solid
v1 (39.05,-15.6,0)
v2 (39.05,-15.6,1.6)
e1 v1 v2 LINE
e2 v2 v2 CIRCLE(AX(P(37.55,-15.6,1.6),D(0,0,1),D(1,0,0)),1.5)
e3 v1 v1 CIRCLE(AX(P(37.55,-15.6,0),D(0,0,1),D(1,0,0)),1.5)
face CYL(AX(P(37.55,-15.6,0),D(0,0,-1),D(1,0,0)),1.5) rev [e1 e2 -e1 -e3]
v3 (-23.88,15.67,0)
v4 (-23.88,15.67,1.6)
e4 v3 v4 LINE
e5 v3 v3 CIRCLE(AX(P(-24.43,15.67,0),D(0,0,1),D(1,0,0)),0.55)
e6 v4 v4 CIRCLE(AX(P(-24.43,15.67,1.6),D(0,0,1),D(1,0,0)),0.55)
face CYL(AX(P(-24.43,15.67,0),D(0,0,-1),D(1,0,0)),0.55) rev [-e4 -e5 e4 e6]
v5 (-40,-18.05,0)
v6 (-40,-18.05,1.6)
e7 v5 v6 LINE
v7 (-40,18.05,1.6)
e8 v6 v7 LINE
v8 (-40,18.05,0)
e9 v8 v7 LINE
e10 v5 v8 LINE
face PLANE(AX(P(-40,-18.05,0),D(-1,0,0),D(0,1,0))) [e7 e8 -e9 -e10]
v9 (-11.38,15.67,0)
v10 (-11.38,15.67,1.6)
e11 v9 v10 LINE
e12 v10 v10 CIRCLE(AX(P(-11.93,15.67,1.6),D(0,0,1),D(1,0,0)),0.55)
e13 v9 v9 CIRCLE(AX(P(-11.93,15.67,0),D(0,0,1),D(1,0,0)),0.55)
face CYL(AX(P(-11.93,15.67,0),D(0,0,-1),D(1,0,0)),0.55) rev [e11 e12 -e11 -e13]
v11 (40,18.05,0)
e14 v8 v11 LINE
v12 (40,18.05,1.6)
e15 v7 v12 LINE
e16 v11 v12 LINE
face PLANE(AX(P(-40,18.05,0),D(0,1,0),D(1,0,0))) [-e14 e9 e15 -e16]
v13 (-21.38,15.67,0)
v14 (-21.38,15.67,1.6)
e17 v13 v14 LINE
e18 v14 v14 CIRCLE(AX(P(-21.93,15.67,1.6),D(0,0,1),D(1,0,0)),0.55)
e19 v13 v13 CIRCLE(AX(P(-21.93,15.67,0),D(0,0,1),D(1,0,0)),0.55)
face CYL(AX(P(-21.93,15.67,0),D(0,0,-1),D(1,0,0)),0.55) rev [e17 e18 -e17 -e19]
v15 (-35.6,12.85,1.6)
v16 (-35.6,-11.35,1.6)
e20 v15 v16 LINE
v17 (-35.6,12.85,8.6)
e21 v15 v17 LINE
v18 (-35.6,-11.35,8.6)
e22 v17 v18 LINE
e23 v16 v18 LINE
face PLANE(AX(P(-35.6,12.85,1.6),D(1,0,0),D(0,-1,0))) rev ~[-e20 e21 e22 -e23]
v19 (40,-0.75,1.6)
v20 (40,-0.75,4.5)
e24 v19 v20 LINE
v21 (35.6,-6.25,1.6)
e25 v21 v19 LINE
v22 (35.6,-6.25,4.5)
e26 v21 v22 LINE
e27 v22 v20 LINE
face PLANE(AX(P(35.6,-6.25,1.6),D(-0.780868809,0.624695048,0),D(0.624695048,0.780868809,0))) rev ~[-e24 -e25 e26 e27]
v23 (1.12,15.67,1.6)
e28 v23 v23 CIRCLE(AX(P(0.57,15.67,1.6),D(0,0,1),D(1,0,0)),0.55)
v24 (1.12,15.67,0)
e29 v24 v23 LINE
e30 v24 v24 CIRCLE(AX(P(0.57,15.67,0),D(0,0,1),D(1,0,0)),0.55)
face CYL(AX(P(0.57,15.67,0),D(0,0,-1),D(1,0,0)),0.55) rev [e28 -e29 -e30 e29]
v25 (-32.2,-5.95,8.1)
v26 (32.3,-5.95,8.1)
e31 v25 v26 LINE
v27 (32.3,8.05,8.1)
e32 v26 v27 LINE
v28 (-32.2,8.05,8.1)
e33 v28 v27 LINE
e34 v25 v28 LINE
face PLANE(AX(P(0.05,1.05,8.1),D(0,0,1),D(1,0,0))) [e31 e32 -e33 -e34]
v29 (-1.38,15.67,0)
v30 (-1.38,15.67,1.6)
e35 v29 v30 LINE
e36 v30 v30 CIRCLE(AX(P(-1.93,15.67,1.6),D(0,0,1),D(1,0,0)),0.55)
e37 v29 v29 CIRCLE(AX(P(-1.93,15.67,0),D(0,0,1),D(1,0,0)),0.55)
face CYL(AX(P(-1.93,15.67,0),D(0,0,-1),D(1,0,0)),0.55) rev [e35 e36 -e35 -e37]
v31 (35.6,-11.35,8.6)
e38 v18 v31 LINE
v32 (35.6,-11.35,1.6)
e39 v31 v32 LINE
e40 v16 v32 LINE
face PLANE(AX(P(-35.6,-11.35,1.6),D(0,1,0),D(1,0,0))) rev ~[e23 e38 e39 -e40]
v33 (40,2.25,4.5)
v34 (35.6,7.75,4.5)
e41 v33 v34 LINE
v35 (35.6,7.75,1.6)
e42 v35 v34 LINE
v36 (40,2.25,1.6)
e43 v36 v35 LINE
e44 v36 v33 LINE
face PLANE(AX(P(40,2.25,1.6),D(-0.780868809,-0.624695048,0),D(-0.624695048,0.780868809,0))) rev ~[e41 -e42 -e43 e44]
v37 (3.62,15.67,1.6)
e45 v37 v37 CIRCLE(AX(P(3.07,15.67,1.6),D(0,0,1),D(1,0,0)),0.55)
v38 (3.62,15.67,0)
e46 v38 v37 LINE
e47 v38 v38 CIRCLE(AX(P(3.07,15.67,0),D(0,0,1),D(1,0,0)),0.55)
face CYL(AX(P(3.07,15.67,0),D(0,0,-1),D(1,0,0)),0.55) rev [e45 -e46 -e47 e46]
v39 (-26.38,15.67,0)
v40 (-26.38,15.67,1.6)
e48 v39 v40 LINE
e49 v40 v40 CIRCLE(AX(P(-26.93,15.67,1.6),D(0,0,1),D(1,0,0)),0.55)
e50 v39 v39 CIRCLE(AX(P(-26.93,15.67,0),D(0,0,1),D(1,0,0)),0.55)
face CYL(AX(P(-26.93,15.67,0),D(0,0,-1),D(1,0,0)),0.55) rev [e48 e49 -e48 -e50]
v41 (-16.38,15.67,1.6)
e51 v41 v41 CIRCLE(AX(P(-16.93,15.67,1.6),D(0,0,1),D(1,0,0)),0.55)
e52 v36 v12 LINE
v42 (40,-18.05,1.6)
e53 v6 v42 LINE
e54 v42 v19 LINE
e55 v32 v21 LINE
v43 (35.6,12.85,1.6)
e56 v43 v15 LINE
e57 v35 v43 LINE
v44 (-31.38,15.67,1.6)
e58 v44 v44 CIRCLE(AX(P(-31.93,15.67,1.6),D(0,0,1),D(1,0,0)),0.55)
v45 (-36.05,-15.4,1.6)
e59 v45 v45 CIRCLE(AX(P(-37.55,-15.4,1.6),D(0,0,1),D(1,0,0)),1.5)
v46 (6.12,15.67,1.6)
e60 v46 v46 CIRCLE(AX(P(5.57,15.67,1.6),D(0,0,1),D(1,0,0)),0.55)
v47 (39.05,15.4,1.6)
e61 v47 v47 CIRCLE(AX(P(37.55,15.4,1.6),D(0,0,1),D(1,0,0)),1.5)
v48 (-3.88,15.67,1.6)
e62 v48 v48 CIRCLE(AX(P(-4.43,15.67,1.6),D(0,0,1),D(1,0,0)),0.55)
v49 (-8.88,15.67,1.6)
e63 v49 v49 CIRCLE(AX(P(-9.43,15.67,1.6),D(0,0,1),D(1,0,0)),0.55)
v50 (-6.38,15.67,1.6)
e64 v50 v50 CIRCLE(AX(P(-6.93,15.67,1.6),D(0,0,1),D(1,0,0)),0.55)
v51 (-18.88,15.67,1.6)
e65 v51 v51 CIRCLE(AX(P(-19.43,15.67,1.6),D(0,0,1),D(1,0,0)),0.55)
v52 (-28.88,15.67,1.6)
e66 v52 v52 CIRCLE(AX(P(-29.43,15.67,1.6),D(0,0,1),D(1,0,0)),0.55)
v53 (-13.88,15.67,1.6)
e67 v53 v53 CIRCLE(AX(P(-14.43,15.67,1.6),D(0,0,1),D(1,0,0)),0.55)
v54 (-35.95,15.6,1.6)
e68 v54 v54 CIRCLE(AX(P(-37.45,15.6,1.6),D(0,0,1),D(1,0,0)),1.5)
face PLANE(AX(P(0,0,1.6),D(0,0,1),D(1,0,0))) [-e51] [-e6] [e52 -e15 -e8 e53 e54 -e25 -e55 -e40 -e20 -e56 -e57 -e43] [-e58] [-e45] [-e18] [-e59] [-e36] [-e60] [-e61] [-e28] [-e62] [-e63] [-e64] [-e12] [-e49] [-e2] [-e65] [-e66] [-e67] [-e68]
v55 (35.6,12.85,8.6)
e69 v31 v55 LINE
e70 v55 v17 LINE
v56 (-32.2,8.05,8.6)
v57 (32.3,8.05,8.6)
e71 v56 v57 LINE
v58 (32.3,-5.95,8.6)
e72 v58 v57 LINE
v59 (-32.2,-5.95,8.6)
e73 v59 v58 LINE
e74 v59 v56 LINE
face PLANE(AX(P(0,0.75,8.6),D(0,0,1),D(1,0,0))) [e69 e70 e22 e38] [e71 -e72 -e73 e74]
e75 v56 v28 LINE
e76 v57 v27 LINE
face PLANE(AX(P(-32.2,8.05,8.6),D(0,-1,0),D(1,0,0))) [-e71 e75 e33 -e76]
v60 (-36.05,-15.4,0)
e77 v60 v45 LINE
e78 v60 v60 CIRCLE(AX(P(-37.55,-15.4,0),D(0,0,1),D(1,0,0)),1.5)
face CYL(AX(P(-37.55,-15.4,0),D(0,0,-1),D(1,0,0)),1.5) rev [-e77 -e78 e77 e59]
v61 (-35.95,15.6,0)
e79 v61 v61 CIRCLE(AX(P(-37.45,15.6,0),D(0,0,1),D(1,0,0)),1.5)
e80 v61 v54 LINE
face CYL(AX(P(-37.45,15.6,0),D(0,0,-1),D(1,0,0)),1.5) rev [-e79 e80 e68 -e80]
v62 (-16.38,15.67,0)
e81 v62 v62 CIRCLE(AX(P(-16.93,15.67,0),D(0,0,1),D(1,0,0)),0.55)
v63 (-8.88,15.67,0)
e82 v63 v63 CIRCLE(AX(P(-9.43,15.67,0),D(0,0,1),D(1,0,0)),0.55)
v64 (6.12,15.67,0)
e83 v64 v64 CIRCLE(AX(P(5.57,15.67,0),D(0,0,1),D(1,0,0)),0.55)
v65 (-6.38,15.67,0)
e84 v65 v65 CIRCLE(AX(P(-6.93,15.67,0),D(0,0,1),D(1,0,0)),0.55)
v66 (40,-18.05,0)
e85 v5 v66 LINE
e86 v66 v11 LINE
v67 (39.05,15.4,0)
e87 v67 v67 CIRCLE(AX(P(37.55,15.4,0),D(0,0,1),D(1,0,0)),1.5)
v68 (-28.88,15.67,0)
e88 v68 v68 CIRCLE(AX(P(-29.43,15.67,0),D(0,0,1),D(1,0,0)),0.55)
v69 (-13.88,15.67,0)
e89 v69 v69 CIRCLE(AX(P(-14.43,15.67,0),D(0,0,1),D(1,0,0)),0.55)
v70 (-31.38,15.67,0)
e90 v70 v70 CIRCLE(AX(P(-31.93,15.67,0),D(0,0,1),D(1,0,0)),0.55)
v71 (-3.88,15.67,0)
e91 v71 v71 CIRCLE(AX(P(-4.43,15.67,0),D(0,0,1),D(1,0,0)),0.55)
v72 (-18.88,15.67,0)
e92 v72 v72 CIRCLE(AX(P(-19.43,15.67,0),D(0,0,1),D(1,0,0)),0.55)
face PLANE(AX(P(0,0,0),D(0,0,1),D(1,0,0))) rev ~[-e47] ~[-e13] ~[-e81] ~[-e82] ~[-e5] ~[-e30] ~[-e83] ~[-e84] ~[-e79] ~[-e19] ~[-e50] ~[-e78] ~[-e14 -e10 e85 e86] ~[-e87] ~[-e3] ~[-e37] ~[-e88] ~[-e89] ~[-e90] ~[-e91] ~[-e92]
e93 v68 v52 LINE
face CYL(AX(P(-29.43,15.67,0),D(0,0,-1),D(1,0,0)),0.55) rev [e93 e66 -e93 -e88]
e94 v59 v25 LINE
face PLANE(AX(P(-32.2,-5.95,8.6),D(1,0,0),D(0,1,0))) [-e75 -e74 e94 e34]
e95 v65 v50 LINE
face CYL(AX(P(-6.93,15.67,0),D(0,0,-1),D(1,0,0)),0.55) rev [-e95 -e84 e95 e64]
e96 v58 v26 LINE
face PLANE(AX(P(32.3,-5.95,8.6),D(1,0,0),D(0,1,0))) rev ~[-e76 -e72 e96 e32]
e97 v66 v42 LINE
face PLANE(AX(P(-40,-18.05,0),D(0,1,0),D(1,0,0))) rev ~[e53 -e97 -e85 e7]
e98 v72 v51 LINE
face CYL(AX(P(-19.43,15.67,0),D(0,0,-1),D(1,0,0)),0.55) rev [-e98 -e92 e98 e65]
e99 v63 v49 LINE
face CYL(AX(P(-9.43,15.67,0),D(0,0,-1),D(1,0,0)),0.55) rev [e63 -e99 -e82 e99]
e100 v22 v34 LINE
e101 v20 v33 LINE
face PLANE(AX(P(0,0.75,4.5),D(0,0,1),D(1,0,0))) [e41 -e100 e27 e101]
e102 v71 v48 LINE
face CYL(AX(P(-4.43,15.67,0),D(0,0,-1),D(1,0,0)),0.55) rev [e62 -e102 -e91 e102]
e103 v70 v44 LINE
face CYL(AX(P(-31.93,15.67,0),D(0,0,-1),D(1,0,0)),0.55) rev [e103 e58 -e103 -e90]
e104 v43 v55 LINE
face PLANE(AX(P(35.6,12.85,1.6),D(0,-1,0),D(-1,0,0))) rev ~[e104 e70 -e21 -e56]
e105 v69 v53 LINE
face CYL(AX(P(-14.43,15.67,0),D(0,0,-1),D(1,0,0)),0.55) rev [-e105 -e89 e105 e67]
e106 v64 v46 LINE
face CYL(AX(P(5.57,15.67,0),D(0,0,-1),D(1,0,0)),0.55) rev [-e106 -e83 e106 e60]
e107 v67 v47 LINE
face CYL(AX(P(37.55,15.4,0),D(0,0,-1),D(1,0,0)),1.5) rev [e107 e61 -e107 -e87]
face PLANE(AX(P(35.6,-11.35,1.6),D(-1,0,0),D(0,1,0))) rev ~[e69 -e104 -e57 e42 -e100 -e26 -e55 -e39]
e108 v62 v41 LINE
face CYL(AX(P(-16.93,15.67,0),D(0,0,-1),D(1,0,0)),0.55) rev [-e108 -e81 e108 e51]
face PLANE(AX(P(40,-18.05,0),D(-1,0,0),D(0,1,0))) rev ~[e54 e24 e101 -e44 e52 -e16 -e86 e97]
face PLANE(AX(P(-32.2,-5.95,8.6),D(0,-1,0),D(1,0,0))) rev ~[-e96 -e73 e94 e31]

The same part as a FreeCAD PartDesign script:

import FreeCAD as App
import Part
import Sketcher


def add_polygon(sketch, points):
    """Adds a closed chain of lines whose ends are joined by coincident constraints."""
    first, n = sketch.GeometryCount, len(points)
    for a, b in zip(points, points[1:] + points[:1]):
        sketch.addGeometry(Part.LineSegment(App.Vector(*a, 0), App.Vector(*b, 0)), False)
    for i in range(n):
        sketch.addConstraint(Sketcher.Constraint("Coincident", first + i, 2, first + (i + 1) % n, 1))

doc = App.newDocument("Part")
body = doc.addObject("PartDesign::Body", "Body")

# Sketch on XY plane
sketch1 = body.newObject("Sketcher::SketchObject", "Sketch")
sketch1.AttachmentSupport = (doc.getObject("XY_Plane"), [""])
sketch1.MapMode = "FlatFace"
add_polygon(sketch1, [(-40, 18.05), (-40, -18.05), (40, -18.05), (40, 18.05)])  # lines 0-3
sketch1.addGeometry(Part.Circle(App.Vector(-37.55, -15.4, 0), App.Vector(0, 0, 1), 1.5), False)  # 4
sketch1.addGeometry(Part.Circle(App.Vector(37.55, -15.6, 0), App.Vector(0, 0, 1), 1.5), False)  # 5
sketch1.addGeometry(Part.Circle(App.Vector(-37.45, 15.6, 0), App.Vector(0, 0, 1), 1.5), False)  # 6
sketch1.addGeometry(Part.Circle(App.Vector(-31.93, 15.67, 0), App.Vector(0, 0, 1), 0.55), False)  # 7
sketch1.addGeometry(Part.Circle(App.Vector(-29.43, 15.67, 0), App.Vector(0, 0, 1), 0.55), False)  # 8
sketch1.addGeometry(Part.Circle(App.Vector(-26.93, 15.67, 0), App.Vector(0, 0, 1), 0.55), False)  # 9
sketch1.addGeometry(Part.Circle(App.Vector(-24.43, 15.67, 0), App.Vector(0, 0, 1), 0.55), False)  # 10
sketch1.addGeometry(Part.Circle(App.Vector(-21.93, 15.67, 0), App.Vector(0, 0, 1), 0.55), False)  # 11
sketch1.addGeometry(Part.Circle(App.Vector(-19.43, 15.67, 0), App.Vector(0, 0, 1), 0.55), False)  # 12
sketch1.addGeometry(Part.Circle(App.Vector(-16.93, 15.67, 0), App.Vector(0, 0, 1), 0.55), False)  # 13
sketch1.addGeometry(Part.Circle(App.Vector(-14.43, 15.67, 0), App.Vector(0, 0, 1), 0.55), False)  # 14
sketch1.addGeometry(Part.Circle(App.Vector(-11.93, 15.67, 0), App.Vector(0, 0, 1), 0.55), False)  # 15
sketch1.addGeometry(Part.Circle(App.Vector(-9.43, 15.67, 0), App.Vector(0, 0, 1), 0.55), False)  # 16
sketch1.addGeometry(Part.Circle(App.Vector(-6.93, 15.67, 0), App.Vector(0, 0, 1), 0.55), False)  # 17
sketch1.addGeometry(Part.Circle(App.Vector(-4.43, 15.67, 0), App.Vector(0, 0, 1), 0.55), False)  # 18
sketch1.addGeometry(Part.Circle(App.Vector(-1.93, 15.67, 0), App.Vector(0, 0, 1), 0.55), False)  # 19
sketch1.addGeometry(Part.Circle(App.Vector(0.57, 15.67, 0), App.Vector(0, 0, 1), 0.55), False)  # 20
sketch1.addGeometry(Part.Circle(App.Vector(3.07, 15.67, 0), App.Vector(0, 0, 1), 0.55), False)  # 21
sketch1.addGeometry(Part.Circle(App.Vector(5.57, 15.67, 0), App.Vector(0, 0, 1), 0.55), False)  # 22
sketch1.addGeometry(Part.Circle(App.Vector(37.55, 15.4, 0), App.Vector(0, 0, 1), 1.5), False)  # 23
sketch1.addConstraint([
    Sketcher.Constraint("Vertical", 0),
    Sketcher.Constraint("Horizontal", 1),
    Sketcher.Constraint("Vertical", 2),
    Sketcher.Constraint("Horizontal", 3),
    Sketcher.Constraint("Equal", 4, 5),
    Sketcher.Constraint("Equal", 5, 6),
    Sketcher.Constraint("Equal", 7, 8),
    Sketcher.Constraint("Equal", 8, 9),
    Sketcher.Constraint("Equal", 9, 10),
    Sketcher.Constraint("Equal", 10, 11),
    Sketcher.Constraint("Equal", 11, 12),
    Sketcher.Constraint("Equal", 12, 13),
    Sketcher.Constraint("Equal", 13, 14),
    Sketcher.Constraint("Equal", 14, 15),
    Sketcher.Constraint("Equal", 15, 16),
    Sketcher.Constraint("Equal", 16, 17),
    Sketcher.Constraint("Equal", 17, 18),
    Sketcher.Constraint("Equal", 18, 19),
    Sketcher.Constraint("Equal", 19, 20),
    Sketcher.Constraint("Equal", 20, 21),
    Sketcher.Constraint("Equal", 21, 22),
    Sketcher.Constraint("Equal", 6, 23),
    Sketcher.Constraint("Symmetric", 4, 3, 23, 3, -1, 1),
    Sketcher.Constraint("Symmetric", 0, 2, 2, 2, -1, 1),
    Sketcher.Constraint("Horizontal", 7, 3, 8, 3),
    Sketcher.Constraint("Horizontal", 8, 3, 9, 3),
    Sketcher.Constraint("Horizontal", 9, 3, 10, 3),
    Sketcher.Constraint("Horizontal", 10, 3, 11, 3),
    Sketcher.Constraint("Horizontal", 11, 3, 12, 3),
    Sketcher.Constraint("Horizontal", 12, 3, 13, 3),
    Sketcher.Constraint("Horizontal", 13, 3, 14, 3),
    Sketcher.Constraint("Horizontal", 14, 3, 15, 3),
    Sketcher.Constraint("Horizontal", 15, 3, 16, 3),
    Sketcher.Constraint("Horizontal", 16, 3, 17, 3),
    Sketcher.Constraint("Horizontal", 17, 3, 18, 3),
    Sketcher.Constraint("Horizontal", 18, 3, 19, 3),
    Sketcher.Constraint("Horizontal", 19, 3, 20, 3),
    Sketcher.Constraint("Horizontal", 20, 3, 21, 3),
    Sketcher.Constraint("Horizontal", 21, 3, 22, 3),
    Sketcher.Constraint("Vertical", 5, 3, 23, 3),
    Sketcher.Constraint("Diameter", 4, 3.0),
    Sketcher.Constraint("Diameter", 7, 1.1),
    Sketcher.Constraint("DistanceX", 1, 1, 1, 2, 80.0),
    Sketcher.Constraint("DistanceY", 0, 2, 0, 1, 36.1),
    Sketcher.Constraint("DistanceY", 4, 3, 6, 3, 31.0),
    Sketcher.Constraint("DistanceX", 6, 3, 5, 3, 75.0),
    Sketcher.Constraint("DistanceX", 7, 3, 9, 3, 5.0),
    Sketcher.Constraint("DistanceX", 8, 3, 10, 3, 5.0),
    Sketcher.Constraint("DistanceX", 9, 3, 11, 3, 5.0),
    Sketcher.Constraint("DistanceX", 10, 3, 12, 3, 5.0),
    Sketcher.Constraint("DistanceX", 11, 3, 13, 3, 5.0),
    Sketcher.Constraint("DistanceX", 12, 3, 14, 3, 5.0),
    Sketcher.Constraint("DistanceX", 13, 3, 15, 3, 5.0),
    Sketcher.Constraint("DistanceX", 14, 3, 16, 3, 5.0),
    Sketcher.Constraint("DistanceX", 15, 3, 17, 3, 5.0),
    Sketcher.Constraint("DistanceX", 16, 3, 18, 3, 5.0),
    Sketcher.Constraint("DistanceX", 17, 3, 19, 3, 5.0),
    Sketcher.Constraint("DistanceX", 18, 3, 20, 3, 5.0),
    Sketcher.Constraint("DistanceX", 19, 3, 21, 3, 5.0),
    Sketcher.Constraint("DistanceX", 20, 3, 22, 3, 5.0),
    Sketcher.Constraint("DistanceY", 5, 3, 23, 3, 31.0),
    Sketcher.Constraint("DistanceY", 4, 3, -1, 1, 15.4),
    Sketcher.Constraint("DistanceX", 4, 3, 5, 3, 75.1),
    Sketcher.Constraint("DistanceX", 7, 3, 8, 3, 2.5),
    Sketcher.Constraint("DistanceX", 7, 3, -1, 1, 31.93),
    Sketcher.Constraint("DistanceY", -1, 1, 7, 3, 15.67),
])
pad1 = body.newObject("PartDesign::Pad", "Pad")
pad1.Profile = sketch1
pad1.Length = 1.6

# Sketch on XY plane
sketch2 = body.newObject("Sketcher::SketchObject", "Sketch001")
sketch2.AttachmentSupport = (doc.getObject("XY_Plane"), [""])
sketch2.MapMode = "FlatFace"
sketch2.AttachmentOffset = App.Placement(App.Vector(0, 0, 1.6), App.Rotation())
add_polygon(sketch2, [(-35.6, 12.85), (-35.6, -11.35), (35.6, -11.35), (35.6, 12.85)])  # lines 0-3
sketch2.addConstraint([
    Sketcher.Constraint("Vertical", 0),
    Sketcher.Constraint("Horizontal", 1),
    Sketcher.Constraint("Vertical", 2),
    Sketcher.Constraint("Horizontal", 3),
    Sketcher.Constraint("DistanceX", 1, 1, 1, 2, 71.2),
    Sketcher.Constraint("DistanceY", 0, 2, 0, 1, 24.2),
    Sketcher.Constraint("DistanceX", 0, 2, -1, 1, 35.6),
    Sketcher.Constraint("DistanceY", 0, 2, -1, 1, 11.35),
])
pad2 = body.newObject("PartDesign::Pad", "Pad001")
pad2.Profile = sketch2
pad2.Length = 7

# Sketch on XY plane
sketch3 = body.newObject("Sketcher::SketchObject", "Sketch002")
sketch3.AttachmentSupport = (doc.getObject("XY_Plane"), [""])
sketch3.MapMode = "FlatFace"
sketch3.AttachmentOffset = App.Placement(App.Vector(0, 0, 1.6), App.Rotation())
add_polygon(sketch3, [(-35.6, 12.85), (-35.6, -11.35), (35.6, -11.35), (35.6, -6.25), (40, -0.75), (40, 2.25), (35.6, 7.75), (35.6, 12.85)])  # lines 0-7
sketch3.addConstraint([
    Sketcher.Constraint("Vertical", 0),
    Sketcher.Constraint("Horizontal", 1),
    Sketcher.Constraint("Vertical", 2),
    Sketcher.Constraint("Vertical", 4),
    Sketcher.Constraint("Vertical", 6),
    Sketcher.Constraint("Horizontal", 7),
    Sketcher.Constraint("Vertical", 2, 2, 5, 2),
    Sketcher.Constraint("Equal", 2, 6),
    Sketcher.Constraint("Equal", 3, 5),
    Sketcher.Constraint("DistanceY", 4, 1, 4, 2, 3.0),
    Sketcher.Constraint("DistanceX", 1, 1, 1, 2, 71.2),
    Sketcher.Constraint("DistanceY", 0, 2, 0, 1, 24.2),
    Sketcher.Constraint("DistanceY", 2, 1, 2, 2, 5.1),
    Sketcher.Constraint("DistanceX", -1, 1, 3, 2, 40.0),
    Sketcher.Constraint("DistanceX", 0, 2, -1, 1, 35.6),
    Sketcher.Constraint("DistanceY", 0, 2, -1, 1, 11.35),
])
pad3 = body.newObject("PartDesign::Pad", "Pad002")
pad3.Profile = sketch3
pad3.Length = 2.9

# Sketch on XY plane
sketch4 = body.newObject("Sketcher::SketchObject", "Sketch003")
sketch4.AttachmentSupport = (doc.getObject("XY_Plane"), [""])
sketch4.MapMode = "FlatFace"
sketch4.AttachmentOffset = App.Placement(App.Vector(0, 0, 8.6), App.Rotation())
add_polygon(sketch4, [(-32.2, 8.05), (-32.2, -5.95), (32.3, -5.95), (32.3, 8.05)])  # lines 0-3
sketch4.addConstraint([
    Sketcher.Constraint("Vertical", 0),
    Sketcher.Constraint("Horizontal", 1),
    Sketcher.Constraint("Vertical", 2),
    Sketcher.Constraint("Horizontal", 3),
    Sketcher.Constraint("DistanceY", 0, 2, 0, 1, 14.0),
    Sketcher.Constraint("DistanceX", 1, 1, 1, 2, 64.5),
    Sketcher.Constraint("DistanceX", 0, 2, -1, 1, 32.2),
    Sketcher.Constraint("DistanceY", 0, 2, -1, 1, 5.95),
])
pocket1 = body.newObject("PartDesign::Pocket", "Pocket")
pocket1.Profile = sketch4
pocket1.Length = 0.5

doc.recompute()
